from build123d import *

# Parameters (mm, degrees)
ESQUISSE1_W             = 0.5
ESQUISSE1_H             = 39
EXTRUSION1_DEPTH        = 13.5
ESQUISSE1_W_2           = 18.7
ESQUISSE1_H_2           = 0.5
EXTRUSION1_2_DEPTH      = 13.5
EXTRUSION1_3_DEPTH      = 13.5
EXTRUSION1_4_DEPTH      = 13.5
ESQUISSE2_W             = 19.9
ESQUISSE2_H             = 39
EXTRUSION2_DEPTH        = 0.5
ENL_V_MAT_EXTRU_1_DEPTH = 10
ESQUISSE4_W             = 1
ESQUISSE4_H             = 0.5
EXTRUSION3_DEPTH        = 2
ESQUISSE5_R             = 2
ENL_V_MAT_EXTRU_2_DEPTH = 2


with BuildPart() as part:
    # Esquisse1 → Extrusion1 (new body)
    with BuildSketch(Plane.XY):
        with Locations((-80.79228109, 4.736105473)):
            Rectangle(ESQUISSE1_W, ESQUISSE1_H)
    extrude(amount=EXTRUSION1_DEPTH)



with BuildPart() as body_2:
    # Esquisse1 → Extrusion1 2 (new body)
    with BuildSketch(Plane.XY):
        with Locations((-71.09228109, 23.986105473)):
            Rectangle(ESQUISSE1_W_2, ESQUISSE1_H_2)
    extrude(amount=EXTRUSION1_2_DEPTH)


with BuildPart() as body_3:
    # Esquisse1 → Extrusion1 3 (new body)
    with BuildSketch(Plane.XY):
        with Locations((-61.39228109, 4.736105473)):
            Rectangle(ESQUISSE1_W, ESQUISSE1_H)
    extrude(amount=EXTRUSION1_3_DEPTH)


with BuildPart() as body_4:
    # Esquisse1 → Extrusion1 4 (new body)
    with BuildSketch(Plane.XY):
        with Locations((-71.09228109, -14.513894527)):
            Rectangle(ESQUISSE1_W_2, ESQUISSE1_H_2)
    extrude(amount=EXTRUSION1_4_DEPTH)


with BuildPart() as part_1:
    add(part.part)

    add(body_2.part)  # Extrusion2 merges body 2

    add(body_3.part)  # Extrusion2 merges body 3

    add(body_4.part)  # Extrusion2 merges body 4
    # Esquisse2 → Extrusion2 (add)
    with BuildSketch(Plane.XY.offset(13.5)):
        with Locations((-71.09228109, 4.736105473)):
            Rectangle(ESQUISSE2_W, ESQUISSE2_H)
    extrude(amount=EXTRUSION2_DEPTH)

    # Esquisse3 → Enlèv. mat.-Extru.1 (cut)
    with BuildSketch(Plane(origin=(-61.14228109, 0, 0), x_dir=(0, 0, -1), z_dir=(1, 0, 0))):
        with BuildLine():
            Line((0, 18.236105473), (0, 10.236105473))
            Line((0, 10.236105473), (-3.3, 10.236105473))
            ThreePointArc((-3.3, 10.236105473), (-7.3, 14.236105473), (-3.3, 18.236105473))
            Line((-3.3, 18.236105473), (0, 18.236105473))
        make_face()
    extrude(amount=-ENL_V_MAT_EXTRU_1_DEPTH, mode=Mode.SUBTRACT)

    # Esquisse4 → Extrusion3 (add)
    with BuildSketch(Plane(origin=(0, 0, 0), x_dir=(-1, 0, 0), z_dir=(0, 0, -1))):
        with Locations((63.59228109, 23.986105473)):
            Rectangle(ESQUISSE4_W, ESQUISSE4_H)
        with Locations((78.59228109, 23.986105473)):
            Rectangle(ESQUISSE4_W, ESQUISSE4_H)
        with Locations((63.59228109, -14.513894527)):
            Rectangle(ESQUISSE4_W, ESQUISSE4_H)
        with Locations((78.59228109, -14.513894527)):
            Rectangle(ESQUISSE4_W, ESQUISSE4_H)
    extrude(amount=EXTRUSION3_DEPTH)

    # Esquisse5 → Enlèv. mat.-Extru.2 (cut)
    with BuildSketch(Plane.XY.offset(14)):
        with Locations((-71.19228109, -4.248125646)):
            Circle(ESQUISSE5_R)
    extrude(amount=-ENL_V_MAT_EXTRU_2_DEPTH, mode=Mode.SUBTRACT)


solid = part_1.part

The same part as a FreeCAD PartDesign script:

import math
import FreeCAD as App
import Part
import Sketcher

V = App.Vector

doc = App.newDocument("Part")
body = doc.addObject("PartDesign::Body", "Body")

# Sketch on XY plane
sketch1 = body.newObject("Sketcher::SketchObject", "Sketch")
sketch1.AttachmentSupport = (doc.getObject("XY_Plane"), [""])
sketch1.MapMode = "FlatFace"
sketch1.addGeometry(Part.LineSegment(V(-81.042281, 24.236105, 0), V(-81.042281, -14.763895, 0)), False)
sketch1.addGeometry(Part.LineSegment(V(-81.042281, -14.763895, 0), V(-80.542281, -14.763895, 0)), False)
sketch1.addGeometry(Part.LineSegment(V(-80.542281, -14.763895, 0), V(-80.542281, 24.236105, 0)), False)
sketch1.addGeometry(Part.LineSegment(V(-80.542281, 24.236105, 0), V(-81.042281, 24.236105, 0)), False)
sketch1.addConstraint(Sketcher.Constraint("Coincident", 0, 2, 1, 1))
sketch1.addConstraint(Sketcher.Constraint("Coincident", 1, 2, 2, 1))
sketch1.addConstraint(Sketcher.Constraint("Coincident", 2, 2, 3, 1))
sketch1.addConstraint(Sketcher.Constraint("Coincident", 3, 2, 0, 1))
sketch1.addConstraint(Sketcher.Constraint("Vertical", 0))
sketch1.addConstraint(Sketcher.Constraint("Horizontal", 1))
sketch1.addConstraint(Sketcher.Constraint("Vertical", 2))
sketch1.addConstraint(Sketcher.Constraint("Horizontal", 3))
sketch1.addConstraint(Sketcher.Constraint("DistanceY", 0, 2, 0, 1, 39.0))
sketch1.addConstraint(Sketcher.Constraint("DistanceX", 1, 1, 1, 2, 0.5))
sketch1.addConstraint(Sketcher.Constraint("DistanceX", 0, 2, -1, 1, 81.042281))
sketch1.addConstraint(Sketcher.Constraint("DistanceY", 0, 2, -1, 1, 14.763895))
pad1 = body.newObject("PartDesign::Pad", "Pad")
pad1.Profile = sketch1
pad1.Length = 13.5
body2 = doc.addObject("PartDesign::Body", "Body001")

# Sketch on XY plane
sketch2 = body2.newObject("Sketcher::SketchObject", "Sketch001")
sketch2.AttachmentSupport = (doc.getObject("XY_Plane001"), [""])
sketch2.MapMode = "FlatFace"
sketch2.addGeometry(Part.LineSegment(V(-80.442281, 24.236105, 0), V(-80.442281, 23.736105, 0)), False)
sketch2.addGeometry(Part.LineSegment(V(-80.442281, 23.736105, 0), V(-61.742281, 23.736105, 0)), False)
sketch2.addGeometry(Part.LineSegment(V(-61.742281, 23.736105, 0), V(-61.742281, 24.236105, 0)), False)
sketch2.addGeometry(Part.LineSegment(V(-61.742281, 24.236105, 0), V(-80.442281, 24.236105, 0)), False)
sketch2.addConstraint(Sketcher.Constraint("Coincident", 0, 2, 1, 1))
sketch2.addConstraint(Sketcher.Constraint("Coincident", 1, 2, 2, 1))
sketch2.addConstraint(Sketcher.Constraint("Coincident", 2, 2, 3, 1))
sketch2.addConstraint(Sketcher.Constraint("Coincident", 3, 2, 0, 1))
sketch2.addConstraint(Sketcher.Constraint("Vertical", 0))
sketch2.addConstraint(Sketcher.Constraint("Horizontal", 1))
sketch2.addConstraint(Sketcher.Constraint("Vertical", 2))
sketch2.addConstraint(Sketcher.Constraint("Horizontal", 3))
sketch2.addConstraint(Sketcher.Constraint("DistanceX", 1, 1, 1, 2, 18.7))
sketch2.addConstraint(Sketcher.Constraint("DistanceY", 0, 2, 0, 1, 0.5))
sketch2.addConstraint(Sketcher.Constraint("DistanceX", 0, 2, -1, 1, 80.442281))
sketch2.addConstraint(Sketcher.Constraint("DistanceY", -1, 1, 0, 2, 23.736105))
pad2 = body2.newObject("PartDesign::Pad", "Pad001")
pad2.Profile = sketch2
pad2.Length = 13.5
body3 = doc.addObject("PartDesign::Body", "Body002")

# Sketch on XY plane
sketch3 = body3.newObject("Sketcher::SketchObject", "Sketch002")
sketch3.AttachmentSupport = (doc.getObject("XY_Plane002"), [""])
sketch3.MapMode = "FlatFace"
sketch3.addGeometry(Part.LineSegment(V(-61.642281, 24.236105, 0), V(-61.642281, -14.763895, 0)), False)
sketch3.addGeometry(Part.LineSegment(V(-61.642281, -14.763895, 0), V(-61.142281, -14.763895, 0)), False)
sketch3.addGeometry(Part.LineSegment(V(-61.142281, -14.763895, 0), V(-61.142281, 24.236105, 0)), False)
sketch3.addGeometry(Part.LineSegment(V(-61.142281, 24.236105, 0), V(-61.642281, 24.236105, 0)), False)
sketch3.addConstraint(Sketcher.Constraint("Coincident", 0, 2, 1, 1))
sketch3.addConstraint(Sketcher.Constraint("Coincident", 1, 2, 2, 1))
sketch3.addConstraint(Sketcher.Constraint("Coincident", 2, 2, 3, 1))
sketch3.addConstraint(Sketcher.Constraint("Coincident", 3, 2, 0, 1))
sketch3.addConstraint(Sketcher.Constraint("Vertical", 0))
sketch3.addConstraint(Sketcher.Constraint("Horizontal", 1))
sketch3.addConstraint(Sketcher.Constraint("Vertical", 2))
sketch3.addConstraint(Sketcher.Constraint("Horizontal", 3))
sketch3.addConstraint(Sketcher.Constraint("DistanceY", 0, 2, 0, 1, 39.0))
sketch3.addConstraint(Sketcher.Constraint("DistanceX", 1, 1, 1, 2, 0.5))
sketch3.addConstraint(Sketcher.Constraint("DistanceX", 0, 2, -1, 1, 61.642281))
sketch3.addConstraint(Sketcher.Constraint("DistanceY", 0, 2, -1, 1, 14.763895))
pad3 = body3.newObject("PartDesign::Pad", "Pad002")
pad3.Profile = sketch3
pad3.Length = 13.5
body4 = doc.addObject("PartDesign::Body", "Body003")

# Sketch on XY plane
sketch4 = body4.newObject("Sketcher::SketchObject", "Sketch003")
sketch4.AttachmentSupport = (doc.getObject("XY_Plane003"), [""])
sketch4.MapMode = "FlatFace"
sketch4.addGeometry(Part.LineSegment(V(-80.442281, -14.263895, 0), V(-80.442281, -14.763895, 0)), False)
sketch4.addGeometry(Part.LineSegment(V(-80.442281, -14.763895, 0), V(-61.742281, -14.763895, 0)), False)
sketch4.addGeometry(Part.LineSegment(V(-61.742281, -14.763895, 0), V(-61.742281, -14.263895, 0)), False)
sketch4.addGeometry(Part.LineSegment(V(-61.742281, -14.263895, 0), V(-80.442281, -14.263895, 0)), False)
sketch4.addConstraint(Sketcher.Constraint("Coincident", 0, 2, 1, 1))
sketch4.addConstraint(Sketcher.Constraint("Coincident", 1, 2, 2, 1))
sketch4.addConstraint(Sketcher.Constraint("Coincident", 2, 2, 3, 1))
sketch4.addConstraint(Sketcher.Constraint("Coincident", 3, 2, 0, 1))
sketch4.addConstraint(Sketcher.Constraint("Vertical", 0))
sketch4.addConstraint(Sketcher.Constraint("Horizontal", 1))
sketch4.addConstraint(Sketcher.Constraint("Vertical", 2))
sketch4.addConstraint(Sketcher.Constraint("Horizontal", 3))
sketch4.addConstraint(Sketcher.Constraint("DistanceX", 1, 1, 1, 2, 18.7))
sketch4.addConstraint(Sketcher.Constraint("DistanceY", 0, 2, 0, 1, 0.5))
sketch4.addConstraint(Sketcher.Constraint("DistanceX", 0, 2, -1, 1, 80.442281))
sketch4.addConstraint(Sketcher.Constraint("DistanceY", 0, 2, -1, 1, 14.763895))
pad4 = body4.newObject("PartDesign::Pad", "Pad003")
pad4.Profile = sketch4
pad4.Length = 13.5
body.AllowCompound = True
doc.recompute()

boolean = body.newObject("PartDesign::Boolean", "Boolean")
boolean.Type = "Fuse"
boolean.addObjects([body2])
doc.recompute()

boolean2 = body.newObject("PartDesign::Boolean", "Boolean001")
boolean2.Type = "Fuse"
boolean2.addObjects([body3])
doc.recompute()

boolean3 = body.newObject("PartDesign::Boolean", "Boolean002")
boolean3.Type = "Fuse"
boolean3.addObjects([body4])

# Sketch on XY plane
sketch5 = body.newObject("Sketcher::SketchObject", "Sketch004")
sketch5.AttachmentSupport = (doc.getObject("XY_Plane"), [""])
sketch5.MapMode = "FlatFace"
sketch5.AttachmentOffset = App.Placement(V(0, 0, 13.5), App.Rotation())
sketch5.addGeometry(Part.LineSegment(V(-81.042281, 24.236105, 0), V(-81.042281, -14.763895, 0)), False)
sketch5.addGeometry(Part.LineSegment(V(-81.042281, -14.763895, 0), V(-61.142281, -14.763895, 0)), False)
sketch5.addGeometry(Part.LineSegment(V(-61.142281, -14.763895, 0), V(-61.142281, 24.236105, 0)), False)
sketch5.addGeometry(Part.LineSegment(V(-61.142281, 24.236105, 0), V(-81.042281, 24.236105, 0)), False)
sketch5.addConstraint(Sketcher.Constraint("Coincident", 0, 2, 1, 1))
sketch5.addConstraint(Sketcher.Constraint("Coincident", 1, 2, 2, 1))
sketch5.addConstraint(Sketcher.Constraint("Coincident", 2, 2, 3, 1))
sketch5.addConstraint(Sketcher.Constraint("Coincident", 3, 2, 0, 1))
sketch5.addConstraint(Sketcher.Constraint("Vertical", 0))
sketch5.addConstraint(Sketcher.Constraint("Horizontal", 1))
sketch5.addConstraint(Sketcher.Constraint("Vertical", 2))
sketch5.addConstraint(Sketcher.Constraint("Horizontal", 3))
sketch5.addConstraint(Sketcher.Constraint("DistanceY", 0, 2, 0, 1, 39.0))
sketch5.addConstraint(Sketcher.Constraint("DistanceX", 1, 1, 1, 2, 19.9))
sketch5.addConstraint(Sketcher.Constraint("DistanceX", 0, 2, -1, 1, 81.042281))
sketch5.addConstraint(Sketcher.Constraint("DistanceY", 0, 2, -1, 1, 14.763895))
pad5 = body.newObject("PartDesign::Pad", "Pad004")
pad5.Profile = sketch5
pad5.Length = 0.5

# Sketch on YZ plane
sketch6 = body.newObject("Sketcher::SketchObject", "Sketch005")
sketch6.AttachmentSupport = (doc.getObject("YZ_Plane"), [""])
sketch6.MapMode = "FlatFace"
sketch6.AttachmentOffset = App.Placement(V(0, 0, -61.142281), App.Rotation())
sketch6.addGeometry(Part.LineSegment(V(10.236105, 0, 0), V(18.236105, 0, 0)), False)
sketch6.addGeometry(Part.LineSegment(V(18.236105, 0, 0), V(18.236105, 3.3, 0)), False)
sketch6.addGeometry(Part.ArcOfCircle(Part.Circle(V(14.236105, 3.3, 0), V(0, 0, 1), 4), math.radians(0), math.radians(180)), False)
sketch6.addGeometry(Part.LineSegment(V(10.236105, 3.3, 0), V(10.236105, 0, 0)), False)
sketch6.addConstraint(Sketcher.Constraint("Coincident", 0, 2, 1, 1))
sketch6.addConstraint(Sketcher.Constraint("Tangent", 1, 2, 2, 1))
sketch6.addConstraint(Sketcher.Constraint("Tangent", 2, 2, 3, 1))
sketch6.addConstraint(Sketcher.Constraint("Coincident", 3, 2, 0, 1))
sketch6.addConstraint(Sketcher.Constraint("Horizontal", 0))
sketch6.addConstraint(Sketcher.Constraint("Vertical", 1))
sketch6.addConstraint(Sketcher.Constraint("Vertical", 3))
sketch6.addConstraint(Sketcher.Constraint("PointOnObject", 0, 2, -1))
sketch6.addConstraint(Sketcher.Constraint("Radius", 2, 4.0))
sketch6.addConstraint(Sketcher.Constraint("DistanceY", 1, 1, 1, 2, 3.3))
sketch6.addConstraint(Sketcher.Constraint("DistanceX", -1, 1, 2, 3, 14.236105))
pocket1 = body.newObject("PartDesign::Pocket", "Pocket")
pocket1.Profile = sketch6
pocket1.Length = 10

# Sketch on XY plane
sketch7 = body.newObject("Sketcher::SketchObject", "Sketch006")
sketch7.AttachmentSupport = (doc.getObject("XY_Plane"), [""])
sketch7.MapMode = "FlatFace"
sketch7.addGeometry(Part.LineSegment(V(-63.092281, 24.236105, 0), V(-63.092281, 23.736105, 0)), False)
sketch7.addGeometry(Part.LineSegment(V(-63.092281, 23.736105, 0), V(-64.092281, 23.736105, 0)), False)
sketch7.addGeometry(Part.LineSegment(V(-64.092281, 23.736105, 0), V(-64.092281, 24.236105, 0)), False)
sketch7.addGeometry(Part.LineSegment(V(-64.092281, 24.236105, 0), V(-63.092281, 24.236105, 0)), False)
sketch7.addGeometry(Part.LineSegment(V(-78.092281, 24.236105, 0), V(-78.092281, 23.736105, 0)), False)
sketch7.addGeometry(Part.LineSegment(V(-78.092281, 23.736105, 0), V(-79.092281, 23.736105, 0)), False)
sketch7.addGeometry(Part.LineSegment(V(-79.092281, 23.736105, 0), V(-79.092281, 24.236105, 0)), False)
sketch7.addGeometry(Part.LineSegment(V(-79.092281, 24.236105, 0), V(-78.092281, 24.236105, 0)), False)
sketch7.addGeometry(Part.LineSegment(V(-63.092281, -14.263895, 0), V(-63.092281, -14.763895, 0)), False)
sketch7.addGeometry(Part.LineSegment(V(-63.092281, -14.763895, 0), V(-64.092281, -14.763895, 0)), False)
sketch7.addGeometry(Part.LineSegment(V(-64.092281, -14.763895, 0), V(-64.092281, -14.263895, 0)), False)
sketch7.addGeometry(Part.LineSegment(V(-64.092281, -14.263895, 0), V(-63.092281, -14.263895, 0)), False)
sketch7.addGeometry(Part.LineSegment(V(-78.092281, -14.263895, 0), V(-78.092281, -14.763895, 0)), False)
sketch7.addGeometry(Part.LineSegment(V(-78.092281, -14.763895, 0), V(-79.092281, -14.763895, 0)), False)
sketch7.addGeometry(Part.LineSegment(V(-79.092281, -14.763895, 0), V(-79.092281, -14.263895, 0)), False)
sketch7.addGeometry(Part.LineSegment(V(-79.092281, -14.263895, 0), V(-78.092281, -14.263895, 0)), False)
sketch7.addConstraint(Sketcher.Constraint("Coincident", 0, 2, 1, 1))
sketch7.addConstraint(Sketcher.Constraint("Coincident", 1, 2, 2, 1))
sketch7.addConstraint(Sketcher.Constraint("Coincident", 2, 2, 3, 1))
sketch7.addConstraint(Sketcher.Constraint("Coincident", 3, 2, 0, 1))
sketch7.addConstraint(Sketcher.Constraint("Coincident", 4, 2, 5, 1))
sketch7.addConstraint(Sketcher.Constraint("Coincident", 5, 2, 6, 1))
sketch7.addConstraint(Sketcher.Constraint("Coincident", 6, 2, 7, 1))
sketch7.addConstraint(Sketcher.Constraint("Coincident", 7, 2, 4, 1))
sketch7.addConstraint(Sketcher.Constraint("Coincident", 8, 2, 9, 1))
sketch7.addConstraint(Sketcher.Constraint("Coincident", 9, 2, 10, 1))
sketch7.addConstraint(Sketcher.Constraint("Coincident", 10, 2, 11, 1))
sketch7.addConstraint(Sketcher.Constraint("Coincident", 11, 2, 8, 1))
sketch7.addConstraint(Sketcher.Constraint("Coincident", 12, 2, 13, 1))
sketch7.addConstraint(Sketcher.Constraint("Coincident", 13, 2, 14, 1))
sketch7.addConstraint(Sketcher.Constraint("Coincident", 14, 2, 15, 1))
sketch7.addConstraint(Sketcher.Constraint("Coincident", 15, 2, 12, 1))
sketch7.addConstraint(Sketcher.Constraint("Vertical", 0))
sketch7.addConstraint(Sketcher.Constraint("Horizontal", 1))
sketch7.addConstraint(Sketcher.Constraint("Vertical", 2))
sketch7.addConstraint(Sketcher.Constraint("Horizontal", 3))
sketch7.addConstraint(Sketcher.Constraint("Vertical", 4))
sketch7.addConstraint(Sketcher.Constraint("Horizontal", 5))
sketch7.addConstraint(Sketcher.Constraint("Vertical", 6))
sketch7.addConstraint(Sketcher.Constraint("Horizontal", 7))
sketch7.addConstraint(Sketcher.Constraint("Vertical", 8))
sketch7.addConstraint(Sketcher.Constraint("Horizontal", 9))
sketch7.addConstraint(Sketcher.Constraint("Vertical", 10))
sketch7.addConstraint(Sketcher.Constraint("Horizontal", 11))
sketch7.addConstraint(Sketcher.Constraint("Vertical", 12))
sketch7.addConstraint(Sketcher.Constraint("Horizontal", 13))
sketch7.addConstraint(Sketcher.Constraint("Vertical", 14))
sketch7.addConstraint(Sketcher.Constraint("Horizontal", 15))
sketch7.addConstraint(Sketcher.Constraint("Horizontal", 1, 2, 4, 2))
sketch7.addConstraint(Sketcher.Constraint("Horizontal", 3, 2, 6, 2))
sketch7.addConstraint(Sketcher.Constraint("Horizontal", 9, 2, 12, 2))
sketch7.addConstraint(Sketcher.Constraint("Horizontal", 11, 2, 14, 2))
sketch7.addConstraint(Sketcher.Constraint("Vertical", 3, 2, 8, 2))
sketch7.addConstraint(Sketcher.Constraint("Vertical", 2, 2, 9, 2))
sketch7.addConstraint(Sketcher.Constraint("Vertical", 7, 2, 12, 2))
sketch7.addConstraint(Sketcher.Constraint("Vertical", 6, 2, 13, 2))
sketch7.addConstraint(Sketcher.Constraint("Equal", 3, 5))
sketch7.addConstraint(Sketcher.Constraint("Equal", 6, 8))
sketch7.addConstraint(Sketcher.Constraint("DistanceX", 1, 2, 1, 1, 1.0))
sketch7.addConstraint(Sketcher.Constraint("DistanceY", 0, 2, 0, 1, 0.5))
sketch7.addConstraint(Sketcher.Constraint("DistanceX", 4, 2, 1, 2, 14.0))
sketch7.addConstraint(Sketcher.Constraint("DistanceY", 8, 2, 3, 2, 39.0))
sketch7.addConstraint(Sketcher.Constraint("DistanceX", 0, 2, -1, 1, 63.092281))
sketch7.addConstraint(Sketcher.Constraint("DistanceY", -1, 1, 0, 2, 23.736105))
pad6 = body.newObject("PartDesign::Pad", "Pad005")
pad6.Profile = sketch7
pad6.Length = 2
pad6.Reversed = True

# Sketch on XY plane
sketch8 = body.newObject("Sketcher::SketchObject", "Sketch007")
sketch8.AttachmentSupport = (doc.getObject("XY_Plane"), [""])
sketch8.MapMode = "FlatFace"
sketch8.AttachmentOffset = App.Placement(V(0, 0, 14), App.Rotation())
sketch8.addGeometry(Part.Circle(V(-71.192281, -4.248126, 0), V(0, 0, 1), 2), False)
sketch8.addConstraint(Sketcher.Constraint("Diameter", 0, 4.0))
sketch8.addConstraint(Sketcher.Constraint("DistanceX", 0, 3, -1, 1, 71.192281))
sketch8.addConstraint(Sketcher.Constraint("DistanceY", 0, 3, -1, 1, 4.248126))
pocket2 = body.newObject("PartDesign::Pocket", "Pocket001")
pocket2.Profile = sketch8
pocket2.Length = 2

doc.recompute()
